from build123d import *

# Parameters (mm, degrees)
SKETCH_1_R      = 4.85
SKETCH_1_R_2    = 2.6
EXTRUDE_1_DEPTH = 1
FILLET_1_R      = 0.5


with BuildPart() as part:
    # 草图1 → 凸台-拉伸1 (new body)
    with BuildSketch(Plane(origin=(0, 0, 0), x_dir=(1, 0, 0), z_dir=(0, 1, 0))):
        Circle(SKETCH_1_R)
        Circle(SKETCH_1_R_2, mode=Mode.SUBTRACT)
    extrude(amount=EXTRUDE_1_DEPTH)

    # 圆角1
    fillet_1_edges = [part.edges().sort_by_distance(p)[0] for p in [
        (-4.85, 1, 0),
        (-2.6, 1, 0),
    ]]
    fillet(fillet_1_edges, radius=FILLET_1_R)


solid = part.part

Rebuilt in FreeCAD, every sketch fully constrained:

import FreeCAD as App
import Part
import Sketcher

V = App.Vector
Q = App.Units.Quantity


def edges_at(feature, points):
    """Names of the edges that pass closest to the given points."""
    edges = feature.Shape.Edges
    near = lambda p: min(range(len(edges)), key=lambda i: edges[i].distToShape(Part.Vertex(*p))[0])
    return sorted({f"Edge{near(p) + 1}" for p in points})

doc = App.newDocument("Part")
body = doc.addObject("PartDesign::Body", "Body")

# Sketch on XZ plane
sketch1 = body.newObject("Sketcher::SketchObject", "Sketch")
sketch1.AttachmentSupport = (doc.getObject("XZ_Plane"), [""])
sketch1.MapMode = "FlatFace"
sketch1.addGeometry([
    Part.Circle(V(0, 0, 0), V(0, 0, 1), 4.85),
    Part.Circle(V(0, 0, 0), V(0, 0, 1), 2.6),
], False)
sketch1.addConstraint([
    Sketcher.Constraint("Coincident", 0, 3, -1, 1),
    Sketcher.Constraint("Coincident", 1, 3, -1, 1),
    Sketcher.Constraint("Diameter", 0, Q("9.7 mm")),
    Sketcher.Constraint("Diameter", 1, Q("5.2 mm")),
])
pad1 = body.newObject("PartDesign::Pad", "Pad")
pad1.Profile = sketch1
pad1.Length = 1
pad1.Reversed = True
doc.recompute()

fillet = body.newObject("PartDesign::Fillet", "Fillet")
fillet.Base = (pad1, edges_at(pad1, [(-4.85, 1, 0), (-2.6, 1, 0)]))
fillet.Radius = 0.5

doc.recompute()
